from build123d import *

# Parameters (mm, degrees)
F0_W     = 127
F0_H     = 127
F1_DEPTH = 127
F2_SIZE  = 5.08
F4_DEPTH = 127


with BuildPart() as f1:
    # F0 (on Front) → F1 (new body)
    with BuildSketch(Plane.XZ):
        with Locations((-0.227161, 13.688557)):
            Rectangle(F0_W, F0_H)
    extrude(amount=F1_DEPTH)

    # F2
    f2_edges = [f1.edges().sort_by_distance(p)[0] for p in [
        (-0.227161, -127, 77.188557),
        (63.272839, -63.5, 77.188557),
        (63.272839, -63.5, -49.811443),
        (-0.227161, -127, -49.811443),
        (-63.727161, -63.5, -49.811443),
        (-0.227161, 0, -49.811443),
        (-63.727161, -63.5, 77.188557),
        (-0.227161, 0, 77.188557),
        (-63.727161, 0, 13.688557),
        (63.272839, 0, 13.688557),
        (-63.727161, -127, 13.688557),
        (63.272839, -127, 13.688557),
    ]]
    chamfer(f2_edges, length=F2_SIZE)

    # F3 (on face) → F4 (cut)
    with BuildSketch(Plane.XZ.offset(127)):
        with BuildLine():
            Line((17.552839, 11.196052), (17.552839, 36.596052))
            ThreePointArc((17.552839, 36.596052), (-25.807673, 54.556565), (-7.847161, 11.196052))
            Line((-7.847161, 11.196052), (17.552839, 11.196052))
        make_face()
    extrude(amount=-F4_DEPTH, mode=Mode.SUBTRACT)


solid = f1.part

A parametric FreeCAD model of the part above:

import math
import FreeCAD as App
import Part
import Sketcher

V = App.Vector
Q = App.Units.Quantity

doc = App.newDocument("Part")
body = doc.addObject("PartDesign::Body", "Body")

sketch1 = doc.addObject("Sketcher::SketchObject", "Sketch")
body.addObject(sketch1)
sketch1.AttachmentSupport = (doc.XZ_Plane, [""])
sketch1.MapMode = "FlatFace"
sketch1.addGeometry([
    Part.LineSegment(V(-63.727161, 77.188557, 0), V(-63.727161, -49.811443, 0)),
    Part.LineSegment(V(-63.727161, -49.811443, 0), V(63.272839, -49.811443, 0)),
    Part.LineSegment(V(63.272839, -49.811443, 0), V(63.272839, 77.188557, 0)),
    Part.LineSegment(V(63.272839, 77.188557, 0), V(-63.727161, 77.188557, 0)),
], False)
sketch1.addConstraint([
    Sketcher.Constraint("Coincident", 0, 2, 1, 1),
    Sketcher.Constraint("Coincident", 1, 2, 2, 1),
    Sketcher.Constraint("Coincident", 2, 2, 3, 1),
    Sketcher.Constraint("Coincident", 3, 2, 0, 1),
    Sketcher.Constraint("Vertical", 0),
    Sketcher.Constraint("Horizontal", 1),
    Sketcher.Constraint("Vertical", 2),
    Sketcher.Constraint("Horizontal", 3),
    Sketcher.Constraint("Equal", 3, 0),
    Sketcher.Constraint("DistanceX", 1, 1, 1, 2, Q("5 in")),
    Sketcher.Constraint("DistanceX", 0, 2, -1, 1, Q("63.727161 mm")),
    Sketcher.Constraint("DistanceY", 0, 2, -1, 1, Q("49.811443 mm")),
])
pad1 = doc.addObject("PartDesign::Pad", "Pad")
body.addObject(pad1)
pad1.Profile = sketch1
pad1.Length = Q("5 in")
doc.recompute()

chamfer = doc.addObject("PartDesign::Chamfer", "Chamfer")
body.addObject(chamfer)
chamfer.Base = (pad1, ["Edge1"])
chamfer.UseAllEdges = True
chamfer.Size = Q("0.2 in")

sketch2 = doc.addObject("Sketcher::SketchObject", "Sketch001")
body.addObject(sketch2)
sketch2.AttachmentSupport = (doc.XZ_Plane, [""])
sketch2.MapMode = "FlatFace"
sketch2.AttachmentOffset = App.Placement(V(0, 0, 5 * 25.4), App.Rotation())
sketch2.addGeometry([
    Part.LineSegment(V(17.552839, 11.196052, 0), V(17.552839, 36.596052, 0)),
    Part.ArcOfCircle(Part.Circle(V(-7.847161, 36.596052, 0), V(0, 0, 1), 25.4), math.radians(0), math.radians(270)),
    Part.LineSegment(V(-7.847161, 11.196052, 0), V(17.552839, 11.196052, 0)),
], False)
sketch2.addConstraint([
    Sketcher.Constraint("Tangent", 0, 2, 1, 1),
    Sketcher.Constraint("Tangent", 1, 2, 2, 1),
    Sketcher.Constraint("Coincident", 2, 2, 0, 1),
    Sketcher.Constraint("Vertical", 0),
    Sketcher.Constraint("Horizontal", 2),
    Sketcher.Constraint("Radius", 1, Q("1 in")),
    Sketcher.Constraint("DistanceX", 1, 3, -1, 1, Q("7.847161 mm")),
    Sketcher.Constraint("DistanceY", -1, 1, 1, 3, Q("36.596052 mm")),
])
pocket1 = doc.addObject("PartDesign::Pocket", "Pocket")
body.addObject(pocket1)
pocket1.Profile = sketch2
pocket1.Length = Q("5 in")

doc.recompute()
